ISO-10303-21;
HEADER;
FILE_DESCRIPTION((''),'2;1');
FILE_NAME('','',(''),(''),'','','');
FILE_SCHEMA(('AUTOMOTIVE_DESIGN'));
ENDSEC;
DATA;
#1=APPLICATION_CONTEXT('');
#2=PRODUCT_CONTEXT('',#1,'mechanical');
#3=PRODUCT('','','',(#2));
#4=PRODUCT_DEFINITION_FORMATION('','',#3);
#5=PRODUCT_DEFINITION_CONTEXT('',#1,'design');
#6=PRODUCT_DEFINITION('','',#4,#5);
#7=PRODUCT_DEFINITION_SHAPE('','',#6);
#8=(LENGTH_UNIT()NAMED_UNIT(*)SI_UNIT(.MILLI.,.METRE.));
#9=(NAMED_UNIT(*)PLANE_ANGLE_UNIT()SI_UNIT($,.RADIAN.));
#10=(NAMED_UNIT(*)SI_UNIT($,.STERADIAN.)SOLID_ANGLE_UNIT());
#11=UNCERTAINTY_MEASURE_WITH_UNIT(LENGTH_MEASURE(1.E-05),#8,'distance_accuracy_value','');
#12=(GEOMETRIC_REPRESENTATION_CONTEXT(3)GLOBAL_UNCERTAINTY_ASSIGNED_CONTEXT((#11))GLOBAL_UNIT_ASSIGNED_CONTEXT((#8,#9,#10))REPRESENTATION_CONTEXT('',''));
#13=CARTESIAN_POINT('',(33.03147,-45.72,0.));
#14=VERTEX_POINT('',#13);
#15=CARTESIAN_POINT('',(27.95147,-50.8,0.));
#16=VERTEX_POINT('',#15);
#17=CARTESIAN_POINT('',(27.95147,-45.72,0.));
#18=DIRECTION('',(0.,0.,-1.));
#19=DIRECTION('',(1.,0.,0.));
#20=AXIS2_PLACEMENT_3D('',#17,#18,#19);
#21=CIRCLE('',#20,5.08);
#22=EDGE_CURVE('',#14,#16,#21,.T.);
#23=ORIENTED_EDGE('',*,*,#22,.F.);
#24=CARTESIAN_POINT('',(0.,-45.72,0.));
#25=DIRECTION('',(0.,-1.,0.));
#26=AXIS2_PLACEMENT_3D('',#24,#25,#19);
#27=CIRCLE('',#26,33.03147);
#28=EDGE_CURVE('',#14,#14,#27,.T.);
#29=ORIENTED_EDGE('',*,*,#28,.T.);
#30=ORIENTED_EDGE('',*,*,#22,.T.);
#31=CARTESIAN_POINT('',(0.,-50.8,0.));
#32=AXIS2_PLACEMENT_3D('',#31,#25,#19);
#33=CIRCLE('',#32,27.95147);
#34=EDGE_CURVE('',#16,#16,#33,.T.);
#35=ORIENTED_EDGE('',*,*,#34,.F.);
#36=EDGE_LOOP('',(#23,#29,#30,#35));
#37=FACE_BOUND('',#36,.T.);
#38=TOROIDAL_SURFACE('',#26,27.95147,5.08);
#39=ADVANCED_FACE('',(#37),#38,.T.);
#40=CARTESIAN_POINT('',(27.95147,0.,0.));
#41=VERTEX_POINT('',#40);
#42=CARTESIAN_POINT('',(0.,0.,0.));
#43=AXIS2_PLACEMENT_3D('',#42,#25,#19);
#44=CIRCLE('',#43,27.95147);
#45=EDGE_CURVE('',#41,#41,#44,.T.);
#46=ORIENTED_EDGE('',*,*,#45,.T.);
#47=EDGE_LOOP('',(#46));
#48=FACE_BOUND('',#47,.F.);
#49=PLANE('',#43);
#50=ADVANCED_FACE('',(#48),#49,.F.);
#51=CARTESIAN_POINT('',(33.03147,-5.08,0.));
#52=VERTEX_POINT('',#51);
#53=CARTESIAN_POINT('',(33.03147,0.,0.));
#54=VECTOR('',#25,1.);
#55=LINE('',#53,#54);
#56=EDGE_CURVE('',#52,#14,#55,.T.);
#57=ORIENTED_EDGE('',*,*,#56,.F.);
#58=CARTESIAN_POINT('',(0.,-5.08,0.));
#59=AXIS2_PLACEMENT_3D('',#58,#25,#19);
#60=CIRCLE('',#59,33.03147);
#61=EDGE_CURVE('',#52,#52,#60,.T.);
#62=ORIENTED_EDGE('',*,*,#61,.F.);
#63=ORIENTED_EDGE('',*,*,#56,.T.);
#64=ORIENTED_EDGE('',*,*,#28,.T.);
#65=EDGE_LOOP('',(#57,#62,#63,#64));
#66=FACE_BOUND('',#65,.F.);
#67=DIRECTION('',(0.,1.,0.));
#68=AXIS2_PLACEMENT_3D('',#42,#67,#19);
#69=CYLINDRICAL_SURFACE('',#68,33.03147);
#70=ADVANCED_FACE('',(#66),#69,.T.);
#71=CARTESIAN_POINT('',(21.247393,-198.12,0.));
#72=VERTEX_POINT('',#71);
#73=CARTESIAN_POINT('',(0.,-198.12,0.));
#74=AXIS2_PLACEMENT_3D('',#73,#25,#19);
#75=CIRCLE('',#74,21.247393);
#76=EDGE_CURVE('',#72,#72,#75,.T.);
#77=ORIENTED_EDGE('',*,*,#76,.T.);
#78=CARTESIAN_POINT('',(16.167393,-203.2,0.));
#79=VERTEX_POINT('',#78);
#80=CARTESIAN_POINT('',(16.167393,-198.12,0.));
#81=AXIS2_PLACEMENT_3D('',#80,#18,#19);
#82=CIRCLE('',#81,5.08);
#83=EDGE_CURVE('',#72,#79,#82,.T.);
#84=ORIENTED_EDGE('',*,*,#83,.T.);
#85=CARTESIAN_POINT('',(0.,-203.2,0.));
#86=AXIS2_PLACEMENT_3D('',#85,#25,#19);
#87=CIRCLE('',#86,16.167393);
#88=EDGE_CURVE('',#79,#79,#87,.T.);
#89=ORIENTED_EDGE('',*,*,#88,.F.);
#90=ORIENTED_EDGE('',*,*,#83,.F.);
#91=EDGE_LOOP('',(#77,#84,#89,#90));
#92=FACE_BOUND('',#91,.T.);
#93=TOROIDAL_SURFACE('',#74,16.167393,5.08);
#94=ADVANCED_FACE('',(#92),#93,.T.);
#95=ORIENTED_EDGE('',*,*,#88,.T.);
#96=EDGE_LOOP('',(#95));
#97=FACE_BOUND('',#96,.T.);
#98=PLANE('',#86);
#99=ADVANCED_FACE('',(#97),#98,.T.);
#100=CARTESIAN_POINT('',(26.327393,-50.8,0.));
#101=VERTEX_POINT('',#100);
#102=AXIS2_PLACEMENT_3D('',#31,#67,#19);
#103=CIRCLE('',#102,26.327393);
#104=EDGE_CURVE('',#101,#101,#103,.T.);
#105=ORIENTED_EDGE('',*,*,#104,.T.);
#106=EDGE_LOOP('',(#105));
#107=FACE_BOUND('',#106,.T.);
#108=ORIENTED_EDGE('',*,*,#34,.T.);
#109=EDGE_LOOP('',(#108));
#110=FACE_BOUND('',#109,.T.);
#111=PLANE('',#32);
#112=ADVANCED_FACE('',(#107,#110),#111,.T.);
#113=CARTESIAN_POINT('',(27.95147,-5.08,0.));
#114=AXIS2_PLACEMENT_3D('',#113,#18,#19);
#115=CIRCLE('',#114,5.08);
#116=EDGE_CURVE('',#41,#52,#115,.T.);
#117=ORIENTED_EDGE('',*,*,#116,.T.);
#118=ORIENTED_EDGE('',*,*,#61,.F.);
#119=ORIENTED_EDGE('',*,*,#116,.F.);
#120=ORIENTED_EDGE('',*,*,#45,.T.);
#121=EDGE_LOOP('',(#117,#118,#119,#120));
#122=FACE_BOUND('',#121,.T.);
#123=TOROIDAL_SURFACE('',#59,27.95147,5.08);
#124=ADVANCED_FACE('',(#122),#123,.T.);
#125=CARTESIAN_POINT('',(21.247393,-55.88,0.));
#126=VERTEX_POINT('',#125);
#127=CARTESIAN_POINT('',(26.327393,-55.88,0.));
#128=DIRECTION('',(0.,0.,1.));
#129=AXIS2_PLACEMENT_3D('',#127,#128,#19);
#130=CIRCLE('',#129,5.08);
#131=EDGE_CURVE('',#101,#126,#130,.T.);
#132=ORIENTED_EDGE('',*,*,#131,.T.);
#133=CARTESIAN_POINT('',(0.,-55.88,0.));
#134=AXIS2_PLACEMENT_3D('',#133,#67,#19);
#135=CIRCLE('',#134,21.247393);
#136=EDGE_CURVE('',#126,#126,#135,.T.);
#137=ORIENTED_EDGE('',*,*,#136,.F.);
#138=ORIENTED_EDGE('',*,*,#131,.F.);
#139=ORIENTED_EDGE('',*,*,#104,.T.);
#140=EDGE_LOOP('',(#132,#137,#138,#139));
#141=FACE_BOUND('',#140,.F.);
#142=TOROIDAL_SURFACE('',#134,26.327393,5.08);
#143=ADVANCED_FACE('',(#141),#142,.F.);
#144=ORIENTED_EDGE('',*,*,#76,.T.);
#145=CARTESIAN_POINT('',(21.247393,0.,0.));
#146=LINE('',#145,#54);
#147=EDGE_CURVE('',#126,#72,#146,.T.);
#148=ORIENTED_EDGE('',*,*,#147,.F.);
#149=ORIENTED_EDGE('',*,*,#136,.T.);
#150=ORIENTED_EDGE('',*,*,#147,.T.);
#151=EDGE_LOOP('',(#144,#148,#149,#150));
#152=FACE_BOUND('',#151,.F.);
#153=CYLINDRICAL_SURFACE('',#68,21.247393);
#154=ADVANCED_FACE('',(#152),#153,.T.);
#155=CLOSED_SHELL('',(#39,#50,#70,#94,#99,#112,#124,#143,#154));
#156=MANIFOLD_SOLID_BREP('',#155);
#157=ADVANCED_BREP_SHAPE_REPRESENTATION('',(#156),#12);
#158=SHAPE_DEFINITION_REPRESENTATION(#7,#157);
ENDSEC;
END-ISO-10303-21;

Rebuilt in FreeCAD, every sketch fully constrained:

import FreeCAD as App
import Part
import Sketcher
from FreeCAD import Vector


def edges_at(feature, points):
    """Names of the edges that pass closest to the given points."""
    edges = feature.Shape.Edges
    near = lambda p: min(range(len(edges)), key=lambda i: edges[i].distToShape(Part.Vertex(*p))[0])
    return sorted({f"Edge{near(p) + 1}" for p in points})

doc = App.newDocument("Part")
params = doc.addObject("Spreadsheet::Sheet", "Params")
for row, (alias, value) in enumerate([
    ("pad1_length", "2 in"),
    ("pad2_length", "8 in"),
    ("fillet_radius", "0.2 in"),
    ("fillet2_radius", "0.2 in"),
    ("fillet3_radius", "0.2 in"),
], start=1):
    params.set(f"A{row}", alias)
    params.set(f"B{row}", "=" + value)
    params.setAlias(f"B{row}", alias)

body = doc.addObject("PartDesign::Body", "Body")

# Sketch on XZ plane
sketch1 = doc.addObject("Sketcher::SketchObject", "Sketch")
body.addObject(sketch1)
sketch1.AttachmentSupport = (doc.XZ_Plane, [""])
sketch1.MapMode = "FlatFace"
sketch1.addGeometry(Part.Circle(Vector(0, 0, 0), Vector(0, 0, 1), 33.03147), False)
sketch1.addConstraint(Sketcher.Constraint("Coincident", 0, 3, -1, 1))
sketch1.addConstraint(Sketcher.Constraint("Diameter", 0, 66.06294))
pad1 = doc.addObject("PartDesign::Pad", "Pad")
body.addObject(pad1)
pad1.Profile = sketch1
pad1.setExpression("Length", "Params.pad1_length")

# Sketch on XZ plane
sketch2 = doc.addObject("Sketcher::SketchObject", "Sketch001")
body.addObject(sketch2)
sketch2.AttachmentSupport = (doc.XZ_Plane, [""])
sketch2.MapMode = "FlatFace"
sketch2.addGeometry(Part.Circle(Vector(0, 0, 0), Vector(0, 0, 1), 21.247393), False)
sketch2.addConstraint(Sketcher.Constraint("Coincident", 0, 3, -1, 1))
sketch2.addConstraint(Sketcher.Constraint("Diameter", 0, 42.494786))
pad2 = doc.addObject("PartDesign::Pad", "Pad001")
body.addObject(pad2)
pad2.Profile = sketch2
pad2.setExpression("Length", "Params.pad2_length")
doc.recompute()

fillet = doc.addObject("PartDesign::Fillet", "Fillet")
body.addObject(fillet)
fillet.Base = (pad2, edges_at(pad2, [(-33.031, 0, 0)]))
fillet.setExpression("Radius", "Params.fillet_radius")
doc.recompute()

fillet2 = doc.addObject("PartDesign::Fillet", "Fillet001")
body.addObject(fillet2)
fillet2.Base = (fillet, edges_at(fillet, [(-33.031, -50.8, 0)]))
fillet2.setExpression("Radius", "Params.fillet2_radius")
doc.recompute()

fillet3 = doc.addObject("PartDesign::Fillet", "Fillet002")
body.addObject(fillet3)
fillet3.Base = (fillet2, edges_at(fillet2, [(-21.247, -50.8, 0), (-21.247, -203.2, 0)]))
fillet3.setExpression("Radius", "Params.fillet3_radius")

doc.recompute()
